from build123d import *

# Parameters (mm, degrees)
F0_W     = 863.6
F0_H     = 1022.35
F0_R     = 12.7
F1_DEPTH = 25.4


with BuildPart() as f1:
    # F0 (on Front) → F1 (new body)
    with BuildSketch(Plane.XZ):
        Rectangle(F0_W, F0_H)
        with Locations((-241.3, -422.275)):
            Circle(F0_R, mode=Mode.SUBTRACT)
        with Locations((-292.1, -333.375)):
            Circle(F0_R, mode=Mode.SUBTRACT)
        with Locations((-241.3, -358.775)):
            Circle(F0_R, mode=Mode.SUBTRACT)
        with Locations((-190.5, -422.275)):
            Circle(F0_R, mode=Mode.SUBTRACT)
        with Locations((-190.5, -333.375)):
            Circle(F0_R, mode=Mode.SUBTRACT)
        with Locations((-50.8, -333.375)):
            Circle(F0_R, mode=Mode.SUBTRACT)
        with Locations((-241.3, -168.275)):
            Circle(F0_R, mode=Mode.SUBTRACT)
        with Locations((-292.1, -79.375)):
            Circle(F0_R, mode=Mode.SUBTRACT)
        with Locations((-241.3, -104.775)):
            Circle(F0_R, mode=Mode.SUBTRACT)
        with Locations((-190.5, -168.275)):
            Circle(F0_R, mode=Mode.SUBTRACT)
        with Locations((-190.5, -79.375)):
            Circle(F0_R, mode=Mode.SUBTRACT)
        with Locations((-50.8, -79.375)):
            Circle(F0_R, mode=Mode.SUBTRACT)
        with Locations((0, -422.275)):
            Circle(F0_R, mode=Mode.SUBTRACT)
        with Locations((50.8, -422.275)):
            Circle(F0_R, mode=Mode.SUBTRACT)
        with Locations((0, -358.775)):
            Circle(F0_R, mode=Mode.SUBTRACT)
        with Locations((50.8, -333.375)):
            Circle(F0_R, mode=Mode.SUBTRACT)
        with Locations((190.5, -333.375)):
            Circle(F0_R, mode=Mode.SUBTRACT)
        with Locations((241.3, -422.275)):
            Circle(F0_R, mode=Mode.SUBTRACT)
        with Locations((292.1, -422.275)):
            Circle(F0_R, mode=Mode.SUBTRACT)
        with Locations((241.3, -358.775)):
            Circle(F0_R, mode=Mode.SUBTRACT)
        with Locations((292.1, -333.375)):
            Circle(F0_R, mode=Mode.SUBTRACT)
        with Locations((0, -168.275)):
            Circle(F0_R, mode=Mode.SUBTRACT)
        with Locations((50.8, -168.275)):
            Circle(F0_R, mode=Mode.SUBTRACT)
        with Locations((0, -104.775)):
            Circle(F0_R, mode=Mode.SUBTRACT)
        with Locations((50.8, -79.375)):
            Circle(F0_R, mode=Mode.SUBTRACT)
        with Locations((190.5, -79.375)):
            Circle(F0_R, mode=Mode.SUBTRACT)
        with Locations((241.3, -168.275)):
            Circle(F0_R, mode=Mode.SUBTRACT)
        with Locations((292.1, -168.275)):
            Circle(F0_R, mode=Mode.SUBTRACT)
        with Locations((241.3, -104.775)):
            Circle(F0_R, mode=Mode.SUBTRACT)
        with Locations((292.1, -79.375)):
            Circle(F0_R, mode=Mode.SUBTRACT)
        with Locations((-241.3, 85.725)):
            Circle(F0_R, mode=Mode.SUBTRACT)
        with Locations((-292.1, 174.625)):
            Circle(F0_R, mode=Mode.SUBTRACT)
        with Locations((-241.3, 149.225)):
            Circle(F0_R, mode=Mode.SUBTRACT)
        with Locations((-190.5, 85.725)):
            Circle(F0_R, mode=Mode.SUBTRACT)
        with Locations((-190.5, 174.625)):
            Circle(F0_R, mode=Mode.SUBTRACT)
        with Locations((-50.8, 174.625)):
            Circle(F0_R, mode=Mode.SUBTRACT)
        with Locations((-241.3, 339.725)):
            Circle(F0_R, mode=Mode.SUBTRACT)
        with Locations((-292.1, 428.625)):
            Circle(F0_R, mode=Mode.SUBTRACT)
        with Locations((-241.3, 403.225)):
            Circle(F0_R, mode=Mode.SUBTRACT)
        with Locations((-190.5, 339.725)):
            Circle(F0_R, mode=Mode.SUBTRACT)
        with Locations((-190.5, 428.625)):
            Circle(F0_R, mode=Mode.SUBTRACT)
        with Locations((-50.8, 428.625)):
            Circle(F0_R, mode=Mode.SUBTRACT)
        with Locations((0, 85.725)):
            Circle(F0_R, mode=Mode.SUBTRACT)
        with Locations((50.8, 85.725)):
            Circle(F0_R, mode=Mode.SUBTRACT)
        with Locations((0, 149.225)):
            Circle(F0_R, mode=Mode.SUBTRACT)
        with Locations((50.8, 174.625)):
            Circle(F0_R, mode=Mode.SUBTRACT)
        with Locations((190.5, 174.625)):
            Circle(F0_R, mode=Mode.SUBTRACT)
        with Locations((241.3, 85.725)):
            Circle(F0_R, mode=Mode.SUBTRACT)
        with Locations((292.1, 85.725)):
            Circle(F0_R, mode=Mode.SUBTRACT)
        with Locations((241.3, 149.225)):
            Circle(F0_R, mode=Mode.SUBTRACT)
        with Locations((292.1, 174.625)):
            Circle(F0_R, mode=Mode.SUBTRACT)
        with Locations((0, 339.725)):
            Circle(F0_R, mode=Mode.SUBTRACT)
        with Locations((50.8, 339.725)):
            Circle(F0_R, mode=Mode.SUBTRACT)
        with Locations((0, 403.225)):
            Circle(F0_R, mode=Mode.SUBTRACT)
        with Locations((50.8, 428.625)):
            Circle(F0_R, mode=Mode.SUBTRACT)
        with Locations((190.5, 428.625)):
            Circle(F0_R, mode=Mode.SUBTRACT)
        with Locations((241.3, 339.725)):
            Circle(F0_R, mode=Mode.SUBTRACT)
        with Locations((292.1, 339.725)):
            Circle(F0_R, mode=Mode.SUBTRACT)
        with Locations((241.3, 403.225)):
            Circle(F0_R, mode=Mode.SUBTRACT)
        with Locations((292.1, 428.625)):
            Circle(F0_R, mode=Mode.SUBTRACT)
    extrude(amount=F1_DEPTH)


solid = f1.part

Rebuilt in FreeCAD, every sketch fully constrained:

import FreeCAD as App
import Part
import Sketcher
Q = App.Units.Quantity


def add_polygon(sketch, points):
    """Adds a closed chain of lines whose ends are joined by coincident constraints."""
    first, n = sketch.GeometryCount, len(points)
    for a, b in zip(points, points[1:] + points[:1]):
        sketch.addGeometry(Part.LineSegment(App.Vector(*a, 0), App.Vector(*b, 0)), False)
    for i in range(n):
        sketch.addConstraint(Sketcher.Constraint("Coincident", first + i, 2, first + (i + 1) % n, 1))

doc = App.newDocument("Part")
body = doc.addObject("PartDesign::Body", "Body")

# Sketch on XZ plane
sketch1 = body.newObject("Sketcher::SketchObject", "Sketch")
sketch1.AttachmentSupport = (doc.getObject("XZ_Plane"), [""])
sketch1.MapMode = "FlatFace"
add_polygon(sketch1, [(-432, 511), (-432, -511), (432, -511), (432, 511)])  # lines 0-3
sketch1.addGeometry(Part.Circle(App.Vector(-241, -422, 0), App.Vector(0, 0, 1), 13), False)  # 4
sketch1.addGeometry(Part.Circle(App.Vector(-292, -333, 0), App.Vector(0, 0, 1), 13), False)  # 5
sketch1.addGeometry(Part.Circle(App.Vector(-241, -359, 0), App.Vector(0, 0, 1), 13), False)  # 6
sketch1.addGeometry(Part.Circle(App.Vector(-190, -422, 0), App.Vector(0, 0, 1), 13), False)  # 7
sketch1.addGeometry(Part.Circle(App.Vector(-190, -333, 0), App.Vector(0, 0, 1), 13), False)  # 8
sketch1.addGeometry(Part.Circle(App.Vector(-51, -333, 0), App.Vector(0, 0, 1), 13), False)  # 9
sketch1.addGeometry(Part.Circle(App.Vector(-241, -168, 0), App.Vector(0, 0, 1), 13), False)  # 10
sketch1.addGeometry(Part.Circle(App.Vector(-190, -168, 0), App.Vector(0, 0, 1), 13), False)  # 11
sketch1.addGeometry(Part.Circle(App.Vector(-292, -79, 0), App.Vector(0, 0, 1), 13), False)  # 12
sketch1.addGeometry(Part.Circle(App.Vector(-241, -105, 0), App.Vector(0, 0, 1), 13), False)  # 13
sketch1.addGeometry(Part.Circle(App.Vector(-190, -79, 0), App.Vector(0, 0, 1), 13), False)  # 14
sketch1.addGeometry(Part.Circle(App.Vector(-51, -79, 0), App.Vector(0, 0, 1), 13), False)  # 15
sketch1.addGeometry(Part.Circle(App.Vector(0, -422, 0), App.Vector(0, 0, 1), 13), False)  # 16
sketch1.addGeometry(Part.Circle(App.Vector(51, -422, 0), App.Vector(0, 0, 1), 13), False)  # 17
sketch1.addGeometry(Part.Circle(App.Vector(0, -359, 0), App.Vector(0, 0, 1), 13), False)  # 18
sketch1.addGeometry(Part.Circle(App.Vector(51, -333, 0), App.Vector(0, 0, 1), 13), False)  # 19
sketch1.addGeometry(Part.Circle(App.Vector(190, -333, 0), App.Vector(0, 0, 1), 13), False)  # 20
sketch1.addGeometry(Part.Circle(App.Vector(241, -422, 0), App.Vector(0, 0, 1), 13), False)  # 21
sketch1.addGeometry(Part.Circle(App.Vector(292, -422, 0), App.Vector(0, 0, 1), 13), False)  # 22
sketch1.addGeometry(Part.Circle(App.Vector(241, -359, 0), App.Vector(0, 0, 1), 13), False)  # 23
sketch1.addGeometry(Part.Circle(App.Vector(292, -333, 0), App.Vector(0, 0, 1), 13), False)  # 24
sketch1.addGeometry(Part.Circle(App.Vector(0, -168, 0), App.Vector(0, 0, 1), 13), False)  # 25
sketch1.addGeometry(Part.Circle(App.Vector(51, -168, 0), App.Vector(0, 0, 1), 13), False)  # 26
sketch1.addGeometry(Part.Circle(App.Vector(0, -105, 0), App.Vector(0, 0, 1), 13), False)  # 27
sketch1.addGeometry(Part.Circle(App.Vector(51, -79, 0), App.Vector(0, 0, 1), 13), False)  # 28
sketch1.addGeometry(Part.Circle(App.Vector(241, -168, 0), App.Vector(0, 0, 1), 13), False)  # 29
sketch1.addGeometry(Part.Circle(App.Vector(292, -168, 0), App.Vector(0, 0, 1), 13), False)  # 30
sketch1.addGeometry(Part.Circle(App.Vector(190, -79, 0), App.Vector(0, 0, 1), 13), False)  # 31
sketch1.addGeometry(Part.Circle(App.Vector(241, -105, 0), App.Vector(0, 0, 1), 13), False)  # 32
sketch1.addGeometry(Part.Circle(App.Vector(292, -79, 0), App.Vector(0, 0, 1), 13), False)  # 33
sketch1.addGeometry(Part.Circle(App.Vector(-241, 86, 0), App.Vector(0, 0, 1), 13), False)  # 34
sketch1.addGeometry(Part.Circle(App.Vector(-190, 86, 0), App.Vector(0, 0, 1), 13), False)  # 35
sketch1.addGeometry(Part.Circle(App.Vector(-241, 149, 0), App.Vector(0, 0, 1), 13), False)  # 36
sketch1.addGeometry(Part.Circle(App.Vector(-292, 175, 0), App.Vector(0, 0, 1), 13), False)  # 37
sketch1.addGeometry(Part.Circle(App.Vector(-190, 175, 0), App.Vector(0, 0, 1), 13), False)  # 38
sketch1.addGeometry(Part.Circle(App.Vector(-51, 175, 0), App.Vector(0, 0, 1), 13), False)  # 39
sketch1.addGeometry(Part.Circle(App.Vector(-241, 340, 0), App.Vector(0, 0, 1), 13), False)  # 40
sketch1.addGeometry(Part.Circle(App.Vector(-292, 429, 0), App.Vector(0, 0, 1), 13), False)  # 41
sketch1.addGeometry(Part.Circle(App.Vector(-241, 403, 0), App.Vector(0, 0, 1), 13), False)  # 42
sketch1.addGeometry(Part.Circle(App.Vector(-190, 340, 0), App.Vector(0, 0, 1), 13), False)  # 43
sketch1.addGeometry(Part.Circle(App.Vector(-190, 429, 0), App.Vector(0, 0, 1), 13), False)  # 44
sketch1.addGeometry(Part.Circle(App.Vector(-51, 429, 0), App.Vector(0, 0, 1), 13), False)  # 45
sketch1.addGeometry(Part.Circle(App.Vector(0, 86, 0), App.Vector(0, 0, 1), 13), False)  # 46
sketch1.addGeometry(Part.Circle(App.Vector(51, 86, 0), App.Vector(0, 0, 1), 13), False)  # 47
sketch1.addGeometry(Part.Circle(App.Vector(0, 149, 0), App.Vector(0, 0, 1), 13), False)  # 48
sketch1.addGeometry(Part.Circle(App.Vector(51, 175, 0), App.Vector(0, 0, 1), 13), False)  # 49
sketch1.addGeometry(Part.Circle(App.Vector(241, 86, 0), App.Vector(0, 0, 1), 13), False)  # 50
sketch1.addGeometry(Part.Circle(App.Vector(292, 86, 0), App.Vector(0, 0, 1), 13), False)  # 51
sketch1.addGeometry(Part.Circle(App.Vector(190, 175, 0), App.Vector(0, 0, 1), 13), False)  # 52
sketch1.addGeometry(Part.Circle(App.Vector(241, 149, 0), App.Vector(0, 0, 1), 13), False)  # 53
sketch1.addGeometry(Part.Circle(App.Vector(292, 175, 0), App.Vector(0, 0, 1), 13), False)  # 54
sketch1.addGeometry(Part.Circle(App.Vector(0, 340, 0), App.Vector(0, 0, 1), 13), False)  # 55
sketch1.addGeometry(Part.Circle(App.Vector(51, 340, 0), App.Vector(0, 0, 1), 13), False)  # 56
sketch1.addGeometry(Part.Circle(App.Vector(0, 403, 0), App.Vector(0, 0, 1), 13), False)  # 57
sketch1.addGeometry(Part.Circle(App.Vector(51, 429, 0), App.Vector(0, 0, 1), 13), False)  # 58
sketch1.addGeometry(Part.Circle(App.Vector(190, 429, 0), App.Vector(0, 0, 1), 13), False)  # 59
sketch1.addGeometry(Part.Circle(App.Vector(241, 340, 0), App.Vector(0, 0, 1), 13), False)  # 60
sketch1.addGeometry(Part.Circle(App.Vector(292, 340, 0), App.Vector(0, 0, 1), 13), False)  # 61
sketch1.addGeometry(Part.Circle(App.Vector(241, 403, 0), App.Vector(0, 0, 1), 13), False)  # 62
sketch1.addGeometry(Part.Circle(App.Vector(292, 429, 0), App.Vector(0, 0, 1), 13), False)  # 63
sketch1.addConstraint([
    Sketcher.Constraint("Vertical", 0),
    Sketcher.Constraint("Horizontal", 1),
    Sketcher.Constraint("Vertical", 2),
    Sketcher.Constraint("Horizontal", 3),
    Sketcher.Constraint("Equal", 4, 5),
    Sketcher.Constraint("Equal", 5, 6),
    Sketcher.Constraint("Equal", 6, 7),
    Sketcher.Constraint("Equal", 7, 8),
    Sketcher.Constraint("Equal", 8, 9),
    Sketcher.Constraint("Equal", 9, 10),
    Sketcher.Constraint("Equal", 10, 11),
    Sketcher.Constraint("Equal", 11, 12),
    Sketcher.Constraint("Equal", 12, 13),
    Sketcher.Constraint("Equal", 13, 14),
    Sketcher.Constraint("Equal", 14, 15),
    Sketcher.Constraint("Equal", 15, 16),
    Sketcher.Constraint("Equal", 16, 17),
    Sketcher.Constraint("Equal", 17, 18),
    Sketcher.Constraint("Equal", 18, 19),
    Sketcher.Constraint("Equal", 19, 20),
    Sketcher.Constraint("Equal", 20, 21),
    Sketcher.Constraint("Equal", 21, 22),
    Sketcher.Constraint("Equal", 22, 23),
    Sketcher.Constraint("Equal", 23, 24),
    Sketcher.Constraint("Equal", 24, 25),
    Sketcher.Constraint("Equal", 25, 26),
    Sketcher.Constraint("Equal", 26, 27),
    Sketcher.Constraint("Equal", 27, 28),
    Sketcher.Constraint("Equal", 28, 29),
    Sketcher.Constraint("Equal", 29, 30),
    Sketcher.Constraint("Equal", 30, 31),
    Sketcher.Constraint("Equal", 31, 32),
    Sketcher.Constraint("Equal", 32, 33),
    Sketcher.Constraint("Equal", 33, 34),
    Sketcher.Constraint("Equal", 34, 35),
    Sketcher.Constraint("Equal", 35, 36),
    Sketcher.Constraint("Equal", 36, 37),
    Sketcher.Constraint("Equal", 37, 38),
    Sketcher.Constraint("Equal", 38, 39),
    Sketcher.Constraint("Equal", 39, 40),
    Sketcher.Constraint("Equal", 40, 41),
    Sketcher.Constraint("Equal", 41, 42),
    Sketcher.Constraint("Equal", 42, 43),
    Sketcher.Constraint("Equal", 43, 44),
    Sketcher.Constraint("Equal", 44, 45),
    Sketcher.Constraint("Equal", 45, 46),
    Sketcher.Constraint("Equal", 46, 47),
    Sketcher.Constraint("Equal", 47, 48),
    Sketcher.Constraint("Equal", 48, 49),
    Sketcher.Constraint("Equal", 49, 50),
    Sketcher.Constraint("Equal", 50, 51),
    Sketcher.Constraint("Equal", 51, 52),
    Sketcher.Constraint("Equal", 52, 53),
    Sketcher.Constraint("Equal", 53, 54),
    Sketcher.Constraint("Equal", 54, 55),
    Sketcher.Constraint("Equal", 55, 56),
    Sketcher.Constraint("Equal", 56, 57),
    Sketcher.Constraint("Equal", 57, 58),
    Sketcher.Constraint("Equal", 58, 59),
    Sketcher.Constraint("Equal", 59, 60),
    Sketcher.Constraint("Equal", 60, 61),
    Sketcher.Constraint("Equal", 61, 62),
    Sketcher.Constraint("Equal", 62, 63),
    Sketcher.Constraint("Symmetric", 0, 2, 2, 2, -1, 1),
    Sketcher.Constraint("Symmetric", 9, 3, 19, 3, -2),
    Sketcher.Constraint("Symmetric", 8, 3, 20, 3, -2),
    Sketcher.Constraint("Symmetric", 4, 3, 21, 3, -2),
    Sketcher.Constraint("Symmetric", 6, 3, 23, 3, -2),
    Sketcher.Constraint("Symmetric", 5, 3, 24, 3, -2),
    Sketcher.Constraint("Symmetric", 15, 3, 28, 3, -2),
    Sketcher.Constraint("Symmetric", 10, 3, 29, 3, -2),
    Sketcher.Constraint("Symmetric", 14, 3, 31, 3, -2),
    Sketcher.Constraint("Symmetric", 13, 3, 32, 3, -2),
    Sketcher.Constraint("Symmetric", 12, 3, 33, 3, -2),
    Sketcher.Constraint("Symmetric", 39, 3, 49, 3, -2),
    Sketcher.Constraint("Symmetric", 34, 3, 50, 3, -2),
    Sketcher.Constraint("Symmetric", 38, 3, 52, 3, -2),
    Sketcher.Constraint("Symmetric", 36, 3, 53, 3, -2),
    Sketcher.Constraint("Symmetric", 37, 3, 54, 3, -2),
    Sketcher.Constraint("Symmetric", 45, 3, 58, 3, -2),
    Sketcher.Constraint("Symmetric", 44, 3, 59, 3, -2),
    Sketcher.Constraint("Symmetric", 40, 3, 60, 3, -2),
    Sketcher.Constraint("Symmetric", 42, 3, 62, 3, -2),
    Sketcher.Constraint("Symmetric", 41, 3, 63, 3, -2),
    Sketcher.Constraint("PointOnObject", 16, 3, -2),
    Sketcher.Constraint("PointOnObject", 18, 3, -2),
    Sketcher.Constraint("PointOnObject", 25, 3, -2),
    Sketcher.Constraint("PointOnObject", 27, 3, -2),
    Sketcher.Constraint("PointOnObject", 46, 3, -2),
    Sketcher.Constraint("PointOnObject", 48, 3, -2),
    Sketcher.Constraint("PointOnObject", 55, 3, -2),
    Sketcher.Constraint("PointOnObject", 57, 3, -2),
    Sketcher.Constraint("Horizontal", 4, 3, 7, 3),
    Sketcher.Constraint("Horizontal", 5, 3, 8, 3),
    Sketcher.Constraint("Horizontal", 8, 3, 9, 3),
    Sketcher.Constraint("Horizontal", 10, 3, 11, 3),
    Sketcher.Constraint("Horizontal", 12, 3, 14, 3),
    Sketcher.Constraint("Horizontal", 14, 3, 15, 3),
    Sketcher.Constraint("Horizontal", 7, 3, 16, 3),
    Sketcher.Constraint("Horizontal", 16, 3, 17, 3),
    Sketcher.Constraint("Horizontal", 6, 3, 18, 3),
    Sketcher.Constraint("Horizontal", 21, 3, 22, 3),
    Sketcher.Constraint("Horizontal", 11, 3, 25, 3),
    Sketcher.Constraint("Horizontal", 25, 3, 26, 3),
    Sketcher.Constraint("Horizontal", 13, 3, 27, 3),
    Sketcher.Constraint("Horizontal", 29, 3, 30, 3),
    Sketcher.Constraint("Horizontal", 34, 3, 35, 3),
    Sketcher.Constraint("Horizontal", 37, 3, 38, 3),
    Sketcher.Constraint("Horizontal", 38, 3, 39, 3),
    Sketcher.Constraint("Horizontal", 40, 3, 43, 3),
    Sketcher.Constraint("Horizontal", 41, 3, 44, 3),
    Sketcher.Constraint("Horizontal", 44, 3, 45, 3),
    Sketcher.Constraint("Horizontal", 35, 3, 46, 3),
    Sketcher.Constraint("Horizontal", 46, 3, 47, 3),
    Sketcher.Constraint("Horizontal", 36, 3, 48, 3),
    Sketcher.Constraint("Horizontal", 50, 3, 51, 3),
    Sketcher.Constraint("Horizontal", 43, 3, 55, 3),
    Sketcher.Constraint("Horizontal", 55, 3, 56, 3),
    Sketcher.Constraint("Horizontal", 42, 3, 57, 3),
    Sketcher.Constraint("Horizontal", 60, 3, 61, 3),
    Sketcher.Constraint("Vertical", 4, 3, 6, 3),
    Sketcher.Constraint("Vertical", 7, 3, 8, 3),
    Sketcher.Constraint("Vertical", 6, 3, 10, 3),
    Sketcher.Constraint("Vertical", 8, 3, 11, 3),
    Sketcher.Constraint("Vertical", 5, 3, 12, 3),
    Sketcher.Constraint("Vertical", 10, 3, 13, 3),
    Sketcher.Constraint("Vertical", 11, 3, 14, 3),
    Sketcher.Constraint("Vertical", 9, 3, 15, 3),
    Sketcher.Constraint("Vertical", 17, 3, 19, 3),
    Sketcher.Constraint("Vertical", 22, 3, 24, 3),
    Sketcher.Constraint("Vertical", 19, 3, 26, 3),
    Sketcher.Constraint("Vertical", 24, 3, 30, 3),
    Sketcher.Constraint("Vertical", 13, 3, 34, 3),
    Sketcher.Constraint("Vertical", 14, 3, 35, 3),
    Sketcher.Constraint("Vertical", 34, 3, 36, 3),
    Sketcher.Constraint("Vertical", 12, 3, 37, 3),
    Sketcher.Constraint("Vertical", 35, 3, 38, 3),
    Sketcher.Constraint("Vertical", 15, 3, 39, 3),
    Sketcher.Constraint("Vertical", 36, 3, 40, 3),
    Sketcher.Constraint("Vertical", 37, 3, 41, 3),
    Sketcher.Constraint("Vertical", 40, 3, 42, 3),
    Sketcher.Constraint("Vertical", 38, 3, 43, 3),
    Sketcher.Constraint("Vertical", 43, 3, 44, 3),
    Sketcher.Constraint("Vertical", 39, 3, 45, 3),
    Sketcher.Constraint("Vertical", 28, 3, 47, 3),
    Sketcher.Constraint("Vertical", 33, 3, 51, 3),
    Sketcher.Constraint("Vertical", 49, 3, 56, 3),
    Sketcher.Constraint("Vertical", 54, 3, 61, 3),
    Sketcher.Constraint("Diameter", 4, Q("1 in")),
    Sketcher.Constraint("DistanceX", 1, 1, 1, 2, Q("34 in")),
    Sketcher.Constraint("DistanceX", 9, 3, -1, 1, Q("2 in")),
    Sketcher.Constraint("DistanceY", 0, 2, 0, 1, Q("40.25 in")),
    Sketcher.Constraint("DistanceX", 4, 3, -1, 1, Q("9.5 in")),
    Sketcher.Constraint("DistanceX", 5, 3, -1, 1, Q("11.5 in")),
    Sketcher.Constraint("DistanceX", 7, 3, -1, 1, Q("7.5 in")),
    Sketcher.Constraint("DistanceY", 4, 3, -1, 1, Q("16.625 in")),
    Sketcher.Constraint("DistanceY", 5, 3, -1, 1, Q("13.125 in")),
    Sketcher.Constraint("DistanceY", 6, 3, -1, 1, Q("14.125 in")),
    Sketcher.Constraint("DistanceY", 10, 3, -1, 1, Q("6.625 in")),
    Sketcher.Constraint("DistanceY", 12, 3, -1, 1, Q("3.125 in")),
    Sketcher.Constraint("DistanceY", 13, 3, -1, 1, Q("4.125 in")),
    Sketcher.Constraint("DistanceY", -1, 1, 34, 3, Q("3.375 in")),
    Sketcher.Constraint("DistanceY", -1, 1, 36, 3, Q("5.875 in")),
    Sketcher.Constraint("DistanceY", -1, 1, 37, 3, Q("6.875 in")),
    Sketcher.Constraint("DistanceY", -1, 1, 40, 3, Q("13.375 in")),
    Sketcher.Constraint("DistanceY", -1, 1, 41, 3, Q("16.875 in")),
    Sketcher.Constraint("DistanceY", -1, 1, 42, 3, Q("15.875 in")),
])
pad1 = body.newObject("PartDesign::Pad", "Pad")
pad1.Profile = sketch1
pad1.Length = Q("1 in")

doc.recompute()
